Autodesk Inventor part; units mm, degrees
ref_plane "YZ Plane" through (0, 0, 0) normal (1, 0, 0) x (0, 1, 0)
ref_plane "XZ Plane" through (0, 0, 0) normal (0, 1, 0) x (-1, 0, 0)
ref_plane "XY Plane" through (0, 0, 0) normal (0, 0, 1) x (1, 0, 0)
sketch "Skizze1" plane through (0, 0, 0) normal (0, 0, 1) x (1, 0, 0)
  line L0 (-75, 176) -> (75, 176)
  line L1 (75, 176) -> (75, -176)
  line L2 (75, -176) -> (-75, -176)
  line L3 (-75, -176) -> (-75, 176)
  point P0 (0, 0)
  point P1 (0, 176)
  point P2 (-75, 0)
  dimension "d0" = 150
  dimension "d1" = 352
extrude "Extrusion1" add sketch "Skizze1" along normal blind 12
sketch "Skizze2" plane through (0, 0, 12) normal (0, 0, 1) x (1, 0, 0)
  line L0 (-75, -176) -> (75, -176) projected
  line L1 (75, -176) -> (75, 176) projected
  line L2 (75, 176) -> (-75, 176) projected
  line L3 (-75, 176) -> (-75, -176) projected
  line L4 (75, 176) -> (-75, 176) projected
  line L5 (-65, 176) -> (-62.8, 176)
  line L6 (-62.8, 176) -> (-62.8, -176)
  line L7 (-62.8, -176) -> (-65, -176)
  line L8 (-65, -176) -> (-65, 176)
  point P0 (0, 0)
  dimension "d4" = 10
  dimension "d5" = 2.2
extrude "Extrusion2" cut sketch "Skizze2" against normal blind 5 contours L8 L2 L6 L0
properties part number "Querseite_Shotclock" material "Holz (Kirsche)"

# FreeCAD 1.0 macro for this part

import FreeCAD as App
import Part
import Sketcher
from FreeCAD import Vector

doc = App.newDocument("Part")
params = doc.addObject("Spreadsheet::Sheet", "Params")
for row, (alias, value) in enumerate([
    ("sketch1_width", "150 mm"),
    ("sketch1_height", "352 mm"),
    ("pad1_length", "12 mm"),
    ("sketch2_width", "2.2 mm"),
    ("sketch2_height", "352 mm"),
    ("pocket1_length", "5 mm"),
], start=1):
    params.set(f"A{row}", alias)
    params.set(f"B{row}", "=" + value)
    params.setAlias(f"B{row}", alias)

body = doc.addObject("PartDesign::Body", "Body")

sketch1 = body.newObject("Sketcher::SketchObject", "Sketch")
sketch1.AttachmentSupport = (doc.getObject("XY_Plane"), [""])
sketch1.MapMode = "FlatFace"
sketch1.addGeometry([
    Part.LineSegment(Vector(75, 176, 0), Vector(-75, 176, 0)),
    Part.LineSegment(Vector(-75, 176, 0), Vector(-75, -176, 0)),
    Part.LineSegment(Vector(-75, -176, 0), Vector(75, -176, 0)),
    Part.LineSegment(Vector(75, -176, 0), Vector(75, 176, 0)),
], False)
sketch1.addConstraint([
    Sketcher.Constraint("Coincident", 0, 2, 1, 1),
    Sketcher.Constraint("Coincident", 1, 2, 2, 1),
    Sketcher.Constraint("Coincident", 2, 2, 3, 1),
    Sketcher.Constraint("Coincident", 3, 2, 0, 1),
    Sketcher.Constraint("Horizontal", 0),
    Sketcher.Constraint("Vertical", 1),
    Sketcher.Constraint("Horizontal", 2),
    Sketcher.Constraint("Vertical", 3),
    Sketcher.Constraint("Symmetric", 0, 2, 2, 2, -1, 1),
    Sketcher.Constraint("DistanceX", 0, 2, 0, 1, 150.0),
    Sketcher.Constraint("DistanceY", 1, 2, 1, 1, 352.0),
])
sketch1.setExpression("Constraints[9]", "Params.sketch1_width")
sketch1.setExpression("Constraints[10]", "Params.sketch1_height")
pad1 = body.newObject("PartDesign::Pad", "Pad")
pad1.Profile = sketch1
pad1.setExpression("Length", "Params.pad1_length")

sketch2 = body.newObject("Sketcher::SketchObject", "Sketch001")
sketch2.AttachmentSupport = (doc.getObject("XY_Plane"), [""])
sketch2.MapMode = "FlatFace"
sketch2.AttachmentOffset = App.Placement(Vector(0, 0, 12), App.Rotation())
sketch2.addGeometry([
    Part.LineSegment(Vector(-65, 176, 0), Vector(-65, -176, 0)),
    Part.LineSegment(Vector(-65, -176, 0), Vector(-62.8, -176, 0)),
    Part.LineSegment(Vector(-62.8, -176, 0), Vector(-62.8, 176, 0)),
    Part.LineSegment(Vector(-62.8, 176, 0), Vector(-65, 176, 0)),
], False)
sketch2.addConstraint([
    Sketcher.Constraint("Coincident", 0, 2, 1, 1),
    Sketcher.Constraint("Coincident", 1, 2, 2, 1),
    Sketcher.Constraint("Coincident", 2, 2, 3, 1),
    Sketcher.Constraint("Coincident", 3, 2, 0, 1),
    Sketcher.Constraint("Vertical", 0),
    Sketcher.Constraint("Horizontal", 1),
    Sketcher.Constraint("Vertical", 2),
    Sketcher.Constraint("Horizontal", 3),
    Sketcher.Constraint("DistanceX", 1, 1, 1, 2, 2.2),
    Sketcher.Constraint("DistanceY", 0, 2, 0, 1, 352.0),
    Sketcher.Constraint("DistanceX", 0, 2, -1, 1, 65.0),
    Sketcher.Constraint("DistanceY", 0, 2, -1, 1, 176.0),
])
sketch2.setExpression("Constraints[8]", "Params.sketch2_width")
sketch2.setExpression("Constraints[9]", "Params.sketch2_height")
pocket1 = body.newObject("PartDesign::Pocket", "Pocket")
pocket1.Profile = sketch2
pocket1.setExpression("Length", "Params.pocket1_length")

doc.recompute()
